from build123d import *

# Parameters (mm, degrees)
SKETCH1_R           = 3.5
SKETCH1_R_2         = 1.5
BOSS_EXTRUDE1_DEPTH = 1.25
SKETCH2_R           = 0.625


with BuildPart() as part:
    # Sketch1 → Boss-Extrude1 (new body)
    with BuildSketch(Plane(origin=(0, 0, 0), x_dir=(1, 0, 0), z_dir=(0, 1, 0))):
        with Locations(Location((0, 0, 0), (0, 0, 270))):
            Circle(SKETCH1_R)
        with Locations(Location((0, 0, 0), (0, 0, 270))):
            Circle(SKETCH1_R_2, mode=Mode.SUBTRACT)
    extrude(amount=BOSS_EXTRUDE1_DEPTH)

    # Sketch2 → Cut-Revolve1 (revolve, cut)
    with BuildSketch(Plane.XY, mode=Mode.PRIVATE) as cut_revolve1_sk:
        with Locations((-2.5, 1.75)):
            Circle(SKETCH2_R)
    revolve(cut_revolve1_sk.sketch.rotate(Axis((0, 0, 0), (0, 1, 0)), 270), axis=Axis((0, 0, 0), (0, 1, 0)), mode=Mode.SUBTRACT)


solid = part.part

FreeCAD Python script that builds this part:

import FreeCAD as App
import Part
import Sketcher
from FreeCAD import Vector

doc = App.newDocument("Part")
body = doc.addObject("PartDesign::Body", "Body")

sketch1 = doc.addObject("Sketcher::SketchObject", "Sketch")
body.addObject(sketch1)
sketch1.AttachmentSupport = (doc.XZ_Plane, [""])
sketch1.MapMode = "FlatFace"
sketch1.addGeometry([
    Part.Circle(Vector(0, 0, 0), Vector(0, 0, 1), 3.5),
    Part.Circle(Vector(0, 0, 0), Vector(0, 0, 1), 1.5),
], False)
sketch1.addConstraint([
    Sketcher.Constraint("Coincident", 0, 3, -1, 1),
    Sketcher.Constraint("Coincident", 1, 3, -1, 1),
    Sketcher.Constraint("Diameter", 0, 7.0),
    Sketcher.Constraint("Diameter", 1, 3.0),
])
pad1 = doc.addObject("PartDesign::Pad", "Pad")
body.addObject(pad1)
pad1.Profile = sketch1
pad1.Length = 1.25
pad1.Reversed = True

sketch2 = doc.addObject("Sketcher::SketchObject", "Sketch001")
body.addObject(sketch2)
sketch2.AttachmentSupport = (doc.XY_Plane, [""])
sketch2.MapMode = "FlatFace"
sketch2.addGeometry(Part.Circle(Vector(-2.5, 1.8, 0), Vector(0, 0, 1), 0.6), False)
sketch2.addConstraint([
    Sketcher.Constraint("Diameter", 0, 1.25),
    Sketcher.Constraint("DistanceX", 0, 3, -1, 1, 2.5),
    Sketcher.Constraint("DistanceY", -1, 1, 0, 3, 1.75),
])
groove = doc.addObject("PartDesign::Groove", "Groove")
body.addObject(groove)
groove.Profile = sketch2
groove.ReferenceAxis = (sketch2, ["V_Axis"])
groove.Angle = 360

doc.recompute()
